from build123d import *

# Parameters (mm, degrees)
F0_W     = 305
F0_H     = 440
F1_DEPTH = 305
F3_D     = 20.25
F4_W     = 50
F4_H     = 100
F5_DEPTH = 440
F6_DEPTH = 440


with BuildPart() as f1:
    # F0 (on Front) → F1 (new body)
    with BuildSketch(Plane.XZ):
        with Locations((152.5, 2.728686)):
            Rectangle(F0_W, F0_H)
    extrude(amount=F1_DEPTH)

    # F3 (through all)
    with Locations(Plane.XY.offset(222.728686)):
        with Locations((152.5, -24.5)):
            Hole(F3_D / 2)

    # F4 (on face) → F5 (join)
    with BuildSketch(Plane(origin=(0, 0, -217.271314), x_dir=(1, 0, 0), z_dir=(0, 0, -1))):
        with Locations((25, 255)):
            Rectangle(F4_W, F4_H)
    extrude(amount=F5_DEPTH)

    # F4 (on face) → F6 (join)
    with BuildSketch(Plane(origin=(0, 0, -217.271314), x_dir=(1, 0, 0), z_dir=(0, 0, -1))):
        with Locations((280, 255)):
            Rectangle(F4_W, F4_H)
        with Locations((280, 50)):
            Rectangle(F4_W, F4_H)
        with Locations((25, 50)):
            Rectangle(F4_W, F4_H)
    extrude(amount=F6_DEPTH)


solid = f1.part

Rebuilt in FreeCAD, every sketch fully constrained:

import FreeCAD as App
import Part
import Sketcher
Q = App.Units.Quantity


def add_polygon(sketch, points):
    """Adds a closed chain of lines whose ends are joined by coincident constraints."""
    first, n = sketch.GeometryCount, len(points)
    for a, b in zip(points, points[1:] + points[:1]):
        sketch.addGeometry(Part.LineSegment(App.Vector(*a, 0), App.Vector(*b, 0)), False)
    for i in range(n):
        sketch.addConstraint(Sketcher.Constraint("Coincident", first + i, 2, first + (i + 1) % n, 1))

doc = App.newDocument("Part")
body = doc.addObject("PartDesign::Body", "Body")

# Sketch on XZ plane
sketch1 = body.newObject("Sketcher::SketchObject", "Sketch")
sketch1.AttachmentSupport = (doc.getObject("XZ_Plane"), [""])
sketch1.MapMode = "FlatFace"
add_polygon(sketch1, [(0, 223), (0, -217), (305, -217), (305, 223)])  # lines 0-3
sketch1.addConstraint(Sketcher.Constraint("Vertical", 0))
sketch1.addConstraint(Sketcher.Constraint("Horizontal", 1))
sketch1.addConstraint(Sketcher.Constraint("Vertical", 2))
sketch1.addConstraint(Sketcher.Constraint("Horizontal", 3))
sketch1.addConstraint(Sketcher.Constraint("PointOnObject", 0, 2, -2))
sketch1.addConstraint(Sketcher.Constraint("DistanceX", 1, 1, 1, 2, Q("305 mm")))
sketch1.addConstraint(Sketcher.Constraint("DistanceY", 0, 2, 0, 1, Q("440 mm")))
sketch1.addConstraint(Sketcher.Constraint("DistanceY", 0, 2, -1, 1, Q("217.271314 mm")))
pad1 = body.newObject("PartDesign::Pad", "Pad")
pad1.Profile = sketch1
pad1.Length = 305

# Sketch on XY plane
sketch2 = body.newObject("Sketcher::SketchObject", "Sketch001")
sketch2.AttachmentSupport = (doc.getObject("XY_Plane"), [""])
sketch2.MapMode = "FlatFace"
sketch2.AttachmentOffset = App.Placement(App.Vector(0, 0, 222.728686), App.Rotation())
sketch2.addGeometry(Part.Circle(App.Vector(152, -24, 0), App.Vector(0, 0, 1), 10), False)
sketch2.addConstraint(Sketcher.Constraint("Diameter", 0, Q("20.25 mm")))
sketch2.addConstraint(Sketcher.Constraint("DistanceX", -1, 1, 0, 3, Q("152.5 mm")))
sketch2.addConstraint(Sketcher.Constraint("DistanceY", 0, 3, -1, 1, Q("24.5 mm")))
doc.recompute()
hole = body.newObject("PartDesign::Hole", "Hole")
hole.Profile = sketch2
hole.ThreadType = "None"
hole.Diameter = 20.25
hole.DepthType = "ThroughAll"

# Sketch on XY plane
sketch3 = body.newObject("Sketcher::SketchObject", "Sketch002")
sketch3.AttachmentSupport = (doc.getObject("XY_Plane"), [""])
sketch3.MapMode = "FlatFace"
sketch3.AttachmentOffset = App.Placement(App.Vector(0, 0, -217.271314), App.Rotation())
add_polygon(sketch3, [(0, -305), (0, -205), (50, -205), (50, -305)])  # lines 0-3
sketch3.addConstraint(Sketcher.Constraint("Vertical", 0))
sketch3.addConstraint(Sketcher.Constraint("Horizontal", 1))
sketch3.addConstraint(Sketcher.Constraint("Vertical", 2))
sketch3.addConstraint(Sketcher.Constraint("Horizontal", 3))
sketch3.addConstraint(Sketcher.Constraint("PointOnObject", 0, 2, -2))
sketch3.addConstraint(Sketcher.Constraint("DistanceX", 1, 1, 1, 2, Q("50 mm")))
sketch3.addConstraint(Sketcher.Constraint("DistanceY", 0, 1, 0, 2, Q("100 mm")))
sketch3.addConstraint(Sketcher.Constraint("DistanceY", 0, 2, -1, 1, Q("205 mm")))
pad2 = body.newObject("PartDesign::Pad", "Pad001")
pad2.Profile = sketch3
pad2.Length = 440
pad2.Reversed = True

# Sketch on XY plane
sketch4 = body.newObject("Sketcher::SketchObject", "Sketch003")
sketch4.AttachmentSupport = (doc.getObject("XY_Plane"), [""])
sketch4.MapMode = "FlatFace"
sketch4.AttachmentOffset = App.Placement(App.Vector(0, 0, -217.271314), App.Rotation())
add_polygon(sketch4, [(255, -305), (255, -205), (305, -205), (305, -305)])  # lines 0-3
add_polygon(sketch4, [(255, -100), (255, 0), (305, 0), (305, -100)])  # lines 4-7
add_polygon(sketch4, [(0, -100), (0, 0), (50, 0), (50, -100)])  # lines 8-11
sketch4.addConstraint(Sketcher.Constraint("Vertical", 0))
sketch4.addConstraint(Sketcher.Constraint("Horizontal", 1))
sketch4.addConstraint(Sketcher.Constraint("Vertical", 2))
sketch4.addConstraint(Sketcher.Constraint("Horizontal", 3))
sketch4.addConstraint(Sketcher.Constraint("Vertical", 4))
sketch4.addConstraint(Sketcher.Constraint("Horizontal", 5))
sketch4.addConstraint(Sketcher.Constraint("Vertical", 6))
sketch4.addConstraint(Sketcher.Constraint("Horizontal", 7))
sketch4.addConstraint(Sketcher.Constraint("Vertical", 8))
sketch4.addConstraint(Sketcher.Constraint("Horizontal", 9))
sketch4.addConstraint(Sketcher.Constraint("Vertical", 10))
sketch4.addConstraint(Sketcher.Constraint("Horizontal", 11))
sketch4.addConstraint(Sketcher.Constraint("Coincident", 8, 2, -1, 1))
sketch4.addConstraint(Sketcher.Constraint("PointOnObject", 4, 2, -1))
sketch4.addConstraint(Sketcher.Constraint("Horizontal", 7, 2, 10, 2))
sketch4.addConstraint(Sketcher.Constraint("Vertical", 3, 2, 4, 2))
sketch4.addConstraint(Sketcher.Constraint("Vertical", 2, 2, 5, 2))
sketch4.addConstraint(Sketcher.Constraint("Equal", 7, 9))
sketch4.addConstraint(Sketcher.Constraint("Equal", 2, 4))
sketch4.addConstraint(Sketcher.Constraint("DistanceX", 1, 1, 1, 2, Q("50 mm")))
sketch4.addConstraint(Sketcher.Constraint("DistanceY", 0, 1, 0, 2, Q("100 mm")))
sketch4.addConstraint(Sketcher.Constraint("DistanceX", -1, 1, 0, 2, Q("255 mm")))
sketch4.addConstraint(Sketcher.Constraint("DistanceY", 0, 2, -1, 1, Q("205 mm")))
pad3 = body.newObject("PartDesign::Pad", "Pad002")
pad3.Profile = sketch4
pad3.Length = 440
pad3.Reversed = True

doc.recompute()
